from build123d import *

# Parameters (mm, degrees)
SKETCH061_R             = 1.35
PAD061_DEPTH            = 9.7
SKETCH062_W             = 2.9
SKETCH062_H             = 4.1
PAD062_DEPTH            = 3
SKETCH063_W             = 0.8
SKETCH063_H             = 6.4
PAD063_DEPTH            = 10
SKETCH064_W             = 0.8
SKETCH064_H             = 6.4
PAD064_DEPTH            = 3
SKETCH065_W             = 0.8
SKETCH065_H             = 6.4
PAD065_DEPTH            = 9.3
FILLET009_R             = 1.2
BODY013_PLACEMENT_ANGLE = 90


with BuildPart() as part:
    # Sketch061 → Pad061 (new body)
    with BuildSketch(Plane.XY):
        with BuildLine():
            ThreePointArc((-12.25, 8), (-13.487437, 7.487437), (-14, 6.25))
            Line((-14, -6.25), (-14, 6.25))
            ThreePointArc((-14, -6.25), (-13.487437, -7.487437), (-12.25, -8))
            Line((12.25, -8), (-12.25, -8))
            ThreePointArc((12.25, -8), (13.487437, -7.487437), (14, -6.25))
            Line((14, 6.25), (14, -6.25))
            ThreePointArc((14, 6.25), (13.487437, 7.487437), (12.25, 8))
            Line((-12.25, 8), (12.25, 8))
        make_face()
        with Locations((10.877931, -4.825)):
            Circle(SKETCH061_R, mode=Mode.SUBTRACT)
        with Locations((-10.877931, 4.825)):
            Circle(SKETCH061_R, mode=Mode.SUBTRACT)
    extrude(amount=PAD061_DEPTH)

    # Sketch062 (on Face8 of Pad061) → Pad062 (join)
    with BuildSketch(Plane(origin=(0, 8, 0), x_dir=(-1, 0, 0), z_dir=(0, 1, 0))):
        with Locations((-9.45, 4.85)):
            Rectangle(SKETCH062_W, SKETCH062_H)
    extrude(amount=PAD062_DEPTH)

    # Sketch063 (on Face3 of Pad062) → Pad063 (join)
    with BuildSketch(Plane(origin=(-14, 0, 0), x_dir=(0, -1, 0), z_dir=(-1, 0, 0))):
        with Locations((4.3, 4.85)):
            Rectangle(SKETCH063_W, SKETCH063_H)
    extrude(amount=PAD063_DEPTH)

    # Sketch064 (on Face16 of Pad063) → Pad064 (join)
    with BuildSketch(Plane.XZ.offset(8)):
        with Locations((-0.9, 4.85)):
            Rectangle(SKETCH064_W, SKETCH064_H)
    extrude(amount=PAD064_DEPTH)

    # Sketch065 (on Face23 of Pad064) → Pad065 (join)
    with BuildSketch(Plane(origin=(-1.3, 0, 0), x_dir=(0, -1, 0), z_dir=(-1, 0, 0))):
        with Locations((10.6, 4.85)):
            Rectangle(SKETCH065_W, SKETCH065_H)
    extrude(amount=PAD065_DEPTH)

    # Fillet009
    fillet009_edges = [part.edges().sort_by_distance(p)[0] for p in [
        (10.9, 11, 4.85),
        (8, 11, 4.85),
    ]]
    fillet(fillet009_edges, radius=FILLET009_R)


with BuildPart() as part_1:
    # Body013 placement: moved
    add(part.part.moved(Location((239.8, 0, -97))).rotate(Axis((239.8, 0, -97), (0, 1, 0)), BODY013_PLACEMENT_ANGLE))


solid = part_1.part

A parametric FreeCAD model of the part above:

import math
import FreeCAD as App
import Part
import Sketcher
from FreeCAD import Vector


def edges_at(feature, points):
    """Names of the edges that pass closest to the given points."""
    edges = feature.Shape.Edges
    near = lambda p: min(range(len(edges)), key=lambda i: edges[i].distToShape(Part.Vertex(*p))[0])
    return sorted({f"Edge{near(p) + 1}" for p in points})

doc = App.newDocument("Part")
body = doc.addObject("PartDesign::Body", "Body")

# Sketch on XY plane
sketch1 = doc.addObject("Sketcher::SketchObject", "Sketch")
body.addObject(sketch1)
sketch1.AttachmentSupport = (doc.XY_Plane, [""])
sketch1.MapMode = "FlatFace"
sketch1.addGeometry(Part.ArcOfCircle(Part.Circle(Vector(-12.25, 6.25, 0), Vector(0, 0, 1), 1.75), math.radians(89.999985), math.radians(180.000015)), False)
sketch1.addGeometry(Part.LineSegment(Vector(-14, 6.25, 0), Vector(-14, -6.25, 0)), False)
sketch1.addGeometry(Part.ArcOfCircle(Part.Circle(Vector(-12.25, -6.25, 0), Vector(0, 0, 1), 1.75), math.radians(179.999985), math.radians(270.000015)), False)
sketch1.addGeometry(Part.LineSegment(Vector(-12.25, -8, 0), Vector(12.25, -8, 0)), False)
sketch1.addGeometry(Part.ArcOfCircle(Part.Circle(Vector(12.25, -6.25, 0), Vector(0, 0, 1), 1.75), math.radians(-90.000015), math.radians(0.000015)), False)
sketch1.addGeometry(Part.LineSegment(Vector(14, -6.25, 0), Vector(14, 6.25, 0)), False)
sketch1.addGeometry(Part.ArcOfCircle(Part.Circle(Vector(12.25, 6.25, 0), Vector(0, 0, 1), 1.75), math.radians(-0.000015), math.radians(90.000015)), False)
sketch1.addGeometry(Part.LineSegment(Vector(12.25, 8, 0), Vector(-12.25, 8, 0)), False)
sketch1.addGeometry(Part.Circle(Vector(10.877931, -4.825, 0), Vector(0, 0, 1), 1.35), False)
sketch1.addGeometry(Part.Circle(Vector(-10.877931, 4.825, 0), Vector(0, 0, 1), 1.35), False)
sketch1.addConstraint(Sketcher.Constraint("Tangent", 0, 2, 1, 1))
sketch1.addConstraint(Sketcher.Constraint("Tangent", 1, 2, 2, 1))
sketch1.addConstraint(Sketcher.Constraint("Tangent", 2, 2, 3, 1))
sketch1.addConstraint(Sketcher.Constraint("Tangent", 3, 2, 4, 1))
sketch1.addConstraint(Sketcher.Constraint("Tangent", 4, 2, 5, 1))
sketch1.addConstraint(Sketcher.Constraint("Tangent", 5, 2, 6, 1))
sketch1.addConstraint(Sketcher.Constraint("Tangent", 6, 2, 7, 1))
sketch1.addConstraint(Sketcher.Constraint("Tangent", 7, 2, 0, 1))
sketch1.addConstraint(Sketcher.Constraint("Vertical", 1))
sketch1.addConstraint(Sketcher.Constraint("Horizontal", 3))
sketch1.addConstraint(Sketcher.Constraint("Vertical", 5))
sketch1.addConstraint(Sketcher.Constraint("Horizontal", 7))
sketch1.addConstraint(Sketcher.Constraint("Equal", 0, 2))
sketch1.addConstraint(Sketcher.Constraint("Equal", 2, 4))
sketch1.addConstraint(Sketcher.Constraint("Equal", 4, 6))
sketch1.addConstraint(Sketcher.Constraint("Equal", 8, 9))
sketch1.addConstraint(Sketcher.Constraint("Symmetric", 0, 3, 4, 3, -1, 1))
sketch1.addConstraint(Sketcher.Constraint("Symmetric", 8, 3, 9, 3, -1, 1))
sketch1.addConstraint(Sketcher.Constraint("Diameter", 8, 2.7))
sketch1.addConstraint(Sketcher.Constraint("Radius", 0, 1.75))
sketch1.addConstraint(Sketcher.Constraint("DistanceX", 3, 1, 3, 2, 24.5))
sketch1.addConstraint(Sketcher.Constraint("DistanceY", 1, 2, 1, 1, 12.5))
sketch1.addConstraint(Sketcher.Constraint("DistanceY", 8, 3, 9, 3, 9.65))
sketch1.addConstraint(Sketcher.Constraint("DistanceX", -1, 1, 8, 3, 10.877931))
pad1 = doc.addObject("PartDesign::Pad", "Pad")
body.addObject(pad1)
pad1.Profile = sketch1
pad1.Length = 9.7

# Sketch on XZ plane
sketch2 = doc.addObject("Sketcher::SketchObject", "Sketch001")
body.addObject(sketch2)
sketch2.AttachmentSupport = (doc.XZ_Plane, [""])
sketch2.MapMode = "FlatFace"
sketch2.AttachmentOffset = App.Placement(Vector(0, 0, -8), App.Rotation())
sketch2.addGeometry(Part.LineSegment(Vector(10.9, 6.9, 0), Vector(10.9, 2.8, 0)), False)
sketch2.addGeometry(Part.LineSegment(Vector(10.9, 2.8, 0), Vector(8, 2.8, 0)), False)
sketch2.addGeometry(Part.LineSegment(Vector(8, 2.8, 0), Vector(8, 6.9, 0)), False)
sketch2.addGeometry(Part.LineSegment(Vector(8, 6.9, 0), Vector(10.9, 6.9, 0)), False)
sketch2.addConstraint(Sketcher.Constraint("Coincident", 0, 2, 1, 1))
sketch2.addConstraint(Sketcher.Constraint("Coincident", 1, 2, 2, 1))
sketch2.addConstraint(Sketcher.Constraint("Coincident", 2, 2, 3, 1))
sketch2.addConstraint(Sketcher.Constraint("Coincident", 3, 2, 0, 1))
sketch2.addConstraint(Sketcher.Constraint("Vertical", 0))
sketch2.addConstraint(Sketcher.Constraint("Horizontal", 1))
sketch2.addConstraint(Sketcher.Constraint("Vertical", 2))
sketch2.addConstraint(Sketcher.Constraint("Horizontal", 3))
sketch2.addConstraint(Sketcher.Constraint("DistanceX", 1, 2, 1, 1, 2.9))
sketch2.addConstraint(Sketcher.Constraint("DistanceY", 0, 2, 0, 1, 4.1))
sketch2.addConstraint(Sketcher.Constraint("DistanceX", -1, 1, 1, 2, 8.0))
sketch2.addConstraint(Sketcher.Constraint("DistanceY", -1, 1, 0, 2, 2.8))
pad2 = doc.addObject("PartDesign::Pad", "Pad001")
body.addObject(pad2)
pad2.Profile = sketch2
pad2.Length = 3
pad2.Reversed = True

# Sketch on YZ plane
sketch3 = doc.addObject("Sketcher::SketchObject", "Sketch002")
body.addObject(sketch3)
sketch3.AttachmentSupport = (doc.YZ_Plane, [""])
sketch3.MapMode = "FlatFace"
sketch3.AttachmentOffset = App.Placement(Vector(0, 0, -14), App.Rotation())
sketch3.addGeometry(Part.LineSegment(Vector(-3.9, 8.05, 0), Vector(-3.9, 1.65, 0)), False)
sketch3.addGeometry(Part.LineSegment(Vector(-3.9, 1.65, 0), Vector(-4.7, 1.65, 0)), False)
sketch3.addGeometry(Part.LineSegment(Vector(-4.7, 1.65, 0), Vector(-4.7, 8.05, 0)), False)
sketch3.addGeometry(Part.LineSegment(Vector(-4.7, 8.05, 0), Vector(-3.9, 8.05, 0)), False)
sketch3.addConstraint(Sketcher.Constraint("Coincident", 0, 2, 1, 1))
sketch3.addConstraint(Sketcher.Constraint("Coincident", 1, 2, 2, 1))
sketch3.addConstraint(Sketcher.Constraint("Coincident", 2, 2, 3, 1))
sketch3.addConstraint(Sketcher.Constraint("Coincident", 3, 2, 0, 1))
sketch3.addConstraint(Sketcher.Constraint("Vertical", 0))
sketch3.addConstraint(Sketcher.Constraint("Horizontal", 1))
sketch3.addConstraint(Sketcher.Constraint("Vertical", 2))
sketch3.addConstraint(Sketcher.Constraint("Horizontal", 3))
sketch3.addConstraint(Sketcher.Constraint("DistanceX", 1, 2, 1, 1, 0.8))
sketch3.addConstraint(Sketcher.Constraint("DistanceY", 0, 2, 0, 1, 6.4))
sketch3.addConstraint(Sketcher.Constraint("DistanceX", 0, 2, -1, 1, 3.9))
sketch3.addConstraint(Sketcher.Constraint("DistanceY", -1, 1, 0, 2, 1.65))
pad3 = doc.addObject("PartDesign::Pad", "Pad002")
body.addObject(pad3)
pad3.Profile = sketch3
pad3.Length = 10
pad3.Reversed = True

# Sketch on XZ plane
sketch4 = doc.addObject("Sketcher::SketchObject", "Sketch003")
body.addObject(sketch4)
sketch4.AttachmentSupport = (doc.XZ_Plane, [""])
sketch4.MapMode = "FlatFace"
sketch4.AttachmentOffset = App.Placement(Vector(0, 0, 8), App.Rotation())
sketch4.addGeometry(Part.LineSegment(Vector(-1.3, 8.05, 0), Vector(-1.3, 1.65, 0)), False)
sketch4.addGeometry(Part.LineSegment(Vector(-1.3, 1.65, 0), Vector(-0.5, 1.65, 0)), False)
sketch4.addGeometry(Part.LineSegment(Vector(-0.5, 1.65, 0), Vector(-0.5, 8.05, 0)), False)
sketch4.addGeometry(Part.LineSegment(Vector(-0.5, 8.05, 0), Vector(-1.3, 8.05, 0)), False)
sketch4.addConstraint(Sketcher.Constraint("Coincident", 0, 2, 1, 1))
sketch4.addConstraint(Sketcher.Constraint("Coincident", 1, 2, 2, 1))
sketch4.addConstraint(Sketcher.Constraint("Coincident", 2, 2, 3, 1))
sketch4.addConstraint(Sketcher.Constraint("Coincident", 3, 2, 0, 1))
sketch4.addConstraint(Sketcher.Constraint("Vertical", 0))
sketch4.addConstraint(Sketcher.Constraint("Horizontal", 1))
sketch4.addConstraint(Sketcher.Constraint("Vertical", 2))
sketch4.addConstraint(Sketcher.Constraint("Horizontal", 3))
sketch4.addConstraint(Sketcher.Constraint("DistanceX", 1, 1, 1, 2, 0.8))
sketch4.addConstraint(Sketcher.Constraint("DistanceY", 0, 2, 0, 1, 6.4))
sketch4.addConstraint(Sketcher.Constraint("DistanceX", 0, 2, -1, 1, 1.3))
sketch4.addConstraint(Sketcher.Constraint("DistanceY", -1, 1, 0, 2, 1.65))
pad4 = doc.addObject("PartDesign::Pad", "Pad003")
body.addObject(pad4)
pad4.Profile = sketch4
pad4.Length = 3

# Sketch on YZ plane
sketch5 = doc.addObject("Sketcher::SketchObject", "Sketch004")
body.addObject(sketch5)
sketch5.AttachmentSupport = (doc.YZ_Plane, [""])
sketch5.MapMode = "FlatFace"
sketch5.AttachmentOffset = App.Placement(Vector(0, 0, -1.3), App.Rotation())
sketch5.addGeometry(Part.LineSegment(Vector(-10.2, 8.05, 0), Vector(-10.2, 1.65, 0)), False)
sketch5.addGeometry(Part.LineSegment(Vector(-10.2, 1.65, 0), Vector(-11, 1.65, 0)), False)
sketch5.addGeometry(Part.LineSegment(Vector(-11, 1.65, 0), Vector(-11, 8.05, 0)), False)
sketch5.addGeometry(Part.LineSegment(Vector(-11, 8.05, 0), Vector(-10.2, 8.05, 0)), False)
sketch5.addConstraint(Sketcher.Constraint("Coincident", 0, 2, 1, 1))
sketch5.addConstraint(Sketcher.Constraint("Coincident", 1, 2, 2, 1))
sketch5.addConstraint(Sketcher.Constraint("Coincident", 2, 2, 3, 1))
sketch5.addConstraint(Sketcher.Constraint("Coincident", 3, 2, 0, 1))
sketch5.addConstraint(Sketcher.Constraint("Vertical", 0))
sketch5.addConstraint(Sketcher.Constraint("Horizontal", 1))
sketch5.addConstraint(Sketcher.Constraint("Vertical", 2))
sketch5.addConstraint(Sketcher.Constraint("Horizontal", 3))
sketch5.addConstraint(Sketcher.Constraint("DistanceX", 1, 2, 1, 1, 0.8))
sketch5.addConstraint(Sketcher.Constraint("DistanceY", 0, 2, 0, 1, 6.4))
sketch5.addConstraint(Sketcher.Constraint("DistanceX", 1, 2, -1, 1, 11.0))
sketch5.addConstraint(Sketcher.Constraint("DistanceY", -1, 1, 0, 2, 1.65))
pad5 = doc.addObject("PartDesign::Pad", "Pad004")
body.addObject(pad5)
pad5.Profile = sketch5
pad5.Length = 9.3
pad5.Reversed = True
doc.recompute()

fillet = doc.addObject("PartDesign::Fillet", "Fillet")
body.addObject(fillet)
fillet.Base = (pad5, edges_at(pad5, [(10.9, 11, 4.85), (8, 11, 4.85)]))
fillet.Radius = 1.2
body2 = doc.addObject("PartDesign::Body", "Body001")
doc.recompute()

body.Placement = App.Placement(Vector(239.8, 0, -97), App.Rotation(Vector(0, 1, 0), 90))
boolean = doc.addObject("PartDesign::Boolean", "Boolean")
body2.addObject(boolean)
boolean.Type = "Fuse"
boolean.addObjects([body])

doc.recompute()
